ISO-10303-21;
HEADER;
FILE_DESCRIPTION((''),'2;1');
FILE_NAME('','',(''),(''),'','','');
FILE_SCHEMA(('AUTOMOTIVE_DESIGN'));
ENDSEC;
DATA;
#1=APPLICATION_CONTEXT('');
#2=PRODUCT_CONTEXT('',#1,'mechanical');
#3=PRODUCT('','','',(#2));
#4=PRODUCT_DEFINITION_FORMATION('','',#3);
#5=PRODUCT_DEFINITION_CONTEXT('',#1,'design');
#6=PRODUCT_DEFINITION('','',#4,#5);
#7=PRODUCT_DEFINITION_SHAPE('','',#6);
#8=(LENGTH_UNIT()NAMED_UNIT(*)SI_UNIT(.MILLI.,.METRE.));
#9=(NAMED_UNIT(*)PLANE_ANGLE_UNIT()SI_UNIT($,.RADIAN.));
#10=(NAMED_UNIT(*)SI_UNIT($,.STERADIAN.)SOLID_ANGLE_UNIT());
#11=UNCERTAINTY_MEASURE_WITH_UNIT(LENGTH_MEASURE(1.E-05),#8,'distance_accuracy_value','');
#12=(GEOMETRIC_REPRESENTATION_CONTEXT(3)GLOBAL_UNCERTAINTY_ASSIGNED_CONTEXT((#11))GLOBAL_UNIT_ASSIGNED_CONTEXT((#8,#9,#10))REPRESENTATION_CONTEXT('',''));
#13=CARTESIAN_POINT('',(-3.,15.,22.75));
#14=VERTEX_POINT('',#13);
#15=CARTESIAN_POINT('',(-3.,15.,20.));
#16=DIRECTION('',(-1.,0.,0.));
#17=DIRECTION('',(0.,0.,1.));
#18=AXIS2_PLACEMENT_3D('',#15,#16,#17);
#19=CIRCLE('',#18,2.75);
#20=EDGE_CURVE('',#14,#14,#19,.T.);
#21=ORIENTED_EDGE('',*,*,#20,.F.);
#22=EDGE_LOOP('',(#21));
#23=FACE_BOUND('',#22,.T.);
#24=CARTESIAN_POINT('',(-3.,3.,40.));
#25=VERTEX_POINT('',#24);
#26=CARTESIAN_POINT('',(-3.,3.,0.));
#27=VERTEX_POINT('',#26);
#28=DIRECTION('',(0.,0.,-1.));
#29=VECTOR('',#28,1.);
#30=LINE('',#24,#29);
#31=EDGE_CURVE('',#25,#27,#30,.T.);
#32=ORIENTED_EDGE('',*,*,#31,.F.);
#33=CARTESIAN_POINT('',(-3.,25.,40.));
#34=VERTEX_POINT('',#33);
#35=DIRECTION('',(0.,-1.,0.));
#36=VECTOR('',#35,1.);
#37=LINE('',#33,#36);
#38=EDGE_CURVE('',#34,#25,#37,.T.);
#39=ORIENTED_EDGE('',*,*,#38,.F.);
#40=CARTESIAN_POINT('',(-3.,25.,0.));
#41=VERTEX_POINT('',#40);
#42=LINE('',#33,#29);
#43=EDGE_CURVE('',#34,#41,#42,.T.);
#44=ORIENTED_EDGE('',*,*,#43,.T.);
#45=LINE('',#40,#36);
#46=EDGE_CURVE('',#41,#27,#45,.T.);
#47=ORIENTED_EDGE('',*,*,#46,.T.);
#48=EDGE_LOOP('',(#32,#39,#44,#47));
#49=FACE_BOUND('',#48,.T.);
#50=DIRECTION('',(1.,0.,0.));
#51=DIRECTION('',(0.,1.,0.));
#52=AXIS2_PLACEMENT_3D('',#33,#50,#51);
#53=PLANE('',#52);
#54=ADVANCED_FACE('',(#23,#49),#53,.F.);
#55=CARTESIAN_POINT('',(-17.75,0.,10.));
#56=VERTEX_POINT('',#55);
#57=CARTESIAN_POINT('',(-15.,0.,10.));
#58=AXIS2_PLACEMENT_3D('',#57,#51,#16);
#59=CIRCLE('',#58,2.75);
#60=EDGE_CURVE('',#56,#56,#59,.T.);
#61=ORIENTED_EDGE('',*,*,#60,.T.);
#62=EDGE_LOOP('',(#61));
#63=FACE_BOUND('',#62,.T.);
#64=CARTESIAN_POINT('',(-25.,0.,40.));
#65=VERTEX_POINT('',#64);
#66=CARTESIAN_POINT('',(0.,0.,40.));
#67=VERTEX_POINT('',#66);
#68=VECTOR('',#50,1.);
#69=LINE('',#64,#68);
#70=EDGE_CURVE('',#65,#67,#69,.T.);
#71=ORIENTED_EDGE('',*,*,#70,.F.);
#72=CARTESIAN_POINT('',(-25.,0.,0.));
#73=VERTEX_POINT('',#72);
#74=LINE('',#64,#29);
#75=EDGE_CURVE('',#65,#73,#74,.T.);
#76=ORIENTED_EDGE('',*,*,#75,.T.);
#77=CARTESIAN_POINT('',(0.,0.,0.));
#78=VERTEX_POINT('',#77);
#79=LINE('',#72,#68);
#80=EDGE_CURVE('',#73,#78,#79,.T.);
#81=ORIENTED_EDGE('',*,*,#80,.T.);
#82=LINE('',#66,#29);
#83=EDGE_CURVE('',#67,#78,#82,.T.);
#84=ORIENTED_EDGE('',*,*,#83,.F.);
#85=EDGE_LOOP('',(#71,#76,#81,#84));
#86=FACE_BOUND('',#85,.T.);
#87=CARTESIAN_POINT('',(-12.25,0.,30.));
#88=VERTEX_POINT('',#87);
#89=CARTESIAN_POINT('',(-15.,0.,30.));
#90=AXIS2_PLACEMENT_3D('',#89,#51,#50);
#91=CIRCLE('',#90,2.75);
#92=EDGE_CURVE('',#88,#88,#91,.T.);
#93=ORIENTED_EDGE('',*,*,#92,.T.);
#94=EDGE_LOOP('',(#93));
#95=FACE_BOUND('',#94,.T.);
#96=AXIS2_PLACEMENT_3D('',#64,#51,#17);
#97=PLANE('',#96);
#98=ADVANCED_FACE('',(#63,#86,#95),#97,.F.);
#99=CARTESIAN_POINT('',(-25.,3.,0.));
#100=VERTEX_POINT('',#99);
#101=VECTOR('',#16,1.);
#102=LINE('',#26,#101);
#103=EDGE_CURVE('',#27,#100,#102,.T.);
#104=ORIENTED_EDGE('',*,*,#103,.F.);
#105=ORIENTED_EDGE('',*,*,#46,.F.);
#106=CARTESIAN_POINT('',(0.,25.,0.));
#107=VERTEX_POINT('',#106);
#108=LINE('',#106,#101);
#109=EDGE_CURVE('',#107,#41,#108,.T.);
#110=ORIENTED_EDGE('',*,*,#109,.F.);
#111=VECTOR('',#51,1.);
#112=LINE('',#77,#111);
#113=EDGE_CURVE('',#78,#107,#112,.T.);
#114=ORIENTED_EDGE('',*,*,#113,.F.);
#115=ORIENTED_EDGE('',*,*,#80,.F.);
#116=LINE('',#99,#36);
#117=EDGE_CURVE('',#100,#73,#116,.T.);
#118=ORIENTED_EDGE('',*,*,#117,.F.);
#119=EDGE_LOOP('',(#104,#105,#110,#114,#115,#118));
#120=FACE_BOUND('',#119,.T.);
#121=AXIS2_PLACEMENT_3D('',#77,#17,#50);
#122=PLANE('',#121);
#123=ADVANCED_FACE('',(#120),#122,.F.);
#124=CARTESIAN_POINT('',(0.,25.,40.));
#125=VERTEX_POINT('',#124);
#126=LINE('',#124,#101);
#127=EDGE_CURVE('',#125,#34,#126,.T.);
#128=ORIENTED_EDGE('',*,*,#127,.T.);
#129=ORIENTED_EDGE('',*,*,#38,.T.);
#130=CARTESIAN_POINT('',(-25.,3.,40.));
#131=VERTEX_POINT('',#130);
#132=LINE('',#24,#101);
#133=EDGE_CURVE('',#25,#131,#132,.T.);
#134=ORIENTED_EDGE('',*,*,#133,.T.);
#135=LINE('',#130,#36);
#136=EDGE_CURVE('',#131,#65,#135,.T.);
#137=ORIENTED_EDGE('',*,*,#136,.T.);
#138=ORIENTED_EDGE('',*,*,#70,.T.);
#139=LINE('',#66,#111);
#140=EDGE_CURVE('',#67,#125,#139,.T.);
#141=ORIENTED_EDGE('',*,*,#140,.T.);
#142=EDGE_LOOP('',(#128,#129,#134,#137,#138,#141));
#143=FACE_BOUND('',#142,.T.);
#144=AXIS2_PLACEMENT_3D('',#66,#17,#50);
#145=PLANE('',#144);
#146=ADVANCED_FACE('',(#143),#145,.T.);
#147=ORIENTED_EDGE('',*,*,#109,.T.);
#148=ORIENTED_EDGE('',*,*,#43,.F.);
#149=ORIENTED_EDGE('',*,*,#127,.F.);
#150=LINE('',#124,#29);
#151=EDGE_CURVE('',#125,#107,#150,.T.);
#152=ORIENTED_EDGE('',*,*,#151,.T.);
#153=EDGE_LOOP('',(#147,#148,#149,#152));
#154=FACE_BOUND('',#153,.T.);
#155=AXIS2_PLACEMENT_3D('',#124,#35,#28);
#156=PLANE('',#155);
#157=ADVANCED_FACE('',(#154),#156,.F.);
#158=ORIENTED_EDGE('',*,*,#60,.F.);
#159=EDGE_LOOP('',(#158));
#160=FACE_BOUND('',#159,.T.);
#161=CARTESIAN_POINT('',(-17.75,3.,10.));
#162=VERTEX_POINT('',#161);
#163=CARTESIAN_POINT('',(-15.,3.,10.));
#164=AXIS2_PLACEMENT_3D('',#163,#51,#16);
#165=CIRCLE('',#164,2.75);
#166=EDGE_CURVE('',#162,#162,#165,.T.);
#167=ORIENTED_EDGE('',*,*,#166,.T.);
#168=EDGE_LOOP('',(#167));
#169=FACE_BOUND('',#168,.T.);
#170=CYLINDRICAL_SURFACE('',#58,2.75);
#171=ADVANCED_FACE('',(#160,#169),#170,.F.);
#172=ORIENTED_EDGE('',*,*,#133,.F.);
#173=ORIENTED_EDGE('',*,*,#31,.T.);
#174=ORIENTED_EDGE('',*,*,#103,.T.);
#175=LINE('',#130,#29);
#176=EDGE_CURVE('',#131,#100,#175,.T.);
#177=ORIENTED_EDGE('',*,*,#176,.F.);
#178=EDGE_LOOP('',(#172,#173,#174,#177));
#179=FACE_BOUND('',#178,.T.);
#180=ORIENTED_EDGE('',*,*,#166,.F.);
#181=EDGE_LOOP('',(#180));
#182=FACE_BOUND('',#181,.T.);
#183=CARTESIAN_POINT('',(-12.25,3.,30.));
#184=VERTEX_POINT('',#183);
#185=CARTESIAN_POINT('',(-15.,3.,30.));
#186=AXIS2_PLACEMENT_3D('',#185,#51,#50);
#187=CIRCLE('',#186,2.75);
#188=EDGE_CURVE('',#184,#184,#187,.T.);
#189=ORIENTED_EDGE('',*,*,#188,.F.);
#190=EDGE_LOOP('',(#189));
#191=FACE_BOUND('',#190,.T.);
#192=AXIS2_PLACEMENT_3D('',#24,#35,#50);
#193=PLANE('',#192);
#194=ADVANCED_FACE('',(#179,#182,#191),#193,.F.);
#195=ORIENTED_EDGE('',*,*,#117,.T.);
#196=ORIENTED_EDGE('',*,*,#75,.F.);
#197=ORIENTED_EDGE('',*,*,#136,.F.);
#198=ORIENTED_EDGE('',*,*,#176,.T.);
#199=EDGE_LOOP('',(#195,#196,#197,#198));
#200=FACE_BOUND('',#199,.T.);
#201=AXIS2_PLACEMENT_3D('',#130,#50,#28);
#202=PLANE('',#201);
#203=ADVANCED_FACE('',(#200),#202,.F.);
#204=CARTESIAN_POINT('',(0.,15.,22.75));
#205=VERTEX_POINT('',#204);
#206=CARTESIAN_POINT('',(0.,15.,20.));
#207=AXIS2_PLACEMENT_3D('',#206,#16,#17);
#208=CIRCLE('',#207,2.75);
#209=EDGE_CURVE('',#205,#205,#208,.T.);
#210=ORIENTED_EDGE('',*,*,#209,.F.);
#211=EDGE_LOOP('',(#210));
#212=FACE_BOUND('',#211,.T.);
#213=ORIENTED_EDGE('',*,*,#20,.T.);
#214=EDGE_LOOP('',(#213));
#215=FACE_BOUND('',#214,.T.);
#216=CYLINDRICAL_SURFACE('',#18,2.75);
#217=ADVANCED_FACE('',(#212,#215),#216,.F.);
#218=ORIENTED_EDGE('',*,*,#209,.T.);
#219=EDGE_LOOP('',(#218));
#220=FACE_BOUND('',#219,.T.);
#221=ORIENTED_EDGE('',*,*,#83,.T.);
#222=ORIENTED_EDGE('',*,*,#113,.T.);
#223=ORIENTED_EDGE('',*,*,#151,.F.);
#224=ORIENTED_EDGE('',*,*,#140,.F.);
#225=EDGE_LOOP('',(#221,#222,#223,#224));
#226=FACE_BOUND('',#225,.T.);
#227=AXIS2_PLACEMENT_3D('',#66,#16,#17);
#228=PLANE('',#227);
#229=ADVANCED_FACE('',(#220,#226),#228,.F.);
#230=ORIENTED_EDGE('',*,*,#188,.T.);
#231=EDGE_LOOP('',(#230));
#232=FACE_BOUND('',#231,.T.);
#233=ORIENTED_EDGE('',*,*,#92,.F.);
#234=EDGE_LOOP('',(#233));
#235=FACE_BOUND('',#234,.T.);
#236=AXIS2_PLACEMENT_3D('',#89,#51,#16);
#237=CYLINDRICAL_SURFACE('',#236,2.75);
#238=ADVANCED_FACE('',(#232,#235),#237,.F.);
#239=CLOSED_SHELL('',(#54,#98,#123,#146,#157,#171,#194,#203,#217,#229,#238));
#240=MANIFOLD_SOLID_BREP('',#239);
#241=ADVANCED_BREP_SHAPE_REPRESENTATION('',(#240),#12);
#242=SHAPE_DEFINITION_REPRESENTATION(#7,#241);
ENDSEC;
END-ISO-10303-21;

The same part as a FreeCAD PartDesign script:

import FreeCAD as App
import Part
import Sketcher
from FreeCAD import Vector
Q = App.Units.Quantity


def add_polygon(sketch, points):
    """Adds a closed chain of lines whose ends are joined by coincident constraints."""
    first, n = sketch.GeometryCount, len(points)
    for a, b in zip(points, points[1:] + points[:1]):
        sketch.addGeometry(Part.LineSegment(App.Vector(*a, 0), App.Vector(*b, 0)), False)
    for i in range(n):
        sketch.addConstraint(Sketcher.Constraint("Coincident", first + i, 2, first + (i + 1) % n, 1))

doc = App.newDocument("Part")
body = doc.addObject("PartDesign::Body", "Body")

sketch1 = body.newObject("Sketcher::SketchObject", "Sketch")
sketch1.AttachmentSupport = (doc.getObject("XY_Plane"), [""])
sketch1.MapMode = "FlatFace"
add_polygon(sketch1, [(0, 0), (0, 25), (-3, 25), (-3, 3), (-25, 3), (-25, 0)])
sketch1.addConstraint(Sketcher.Constraint("Vertical", 0))
sketch1.addConstraint(Sketcher.Constraint("Horizontal", 1))
sketch1.addConstraint(Sketcher.Constraint("Vertical", 2))
sketch1.addConstraint(Sketcher.Constraint("Horizontal", 3))
sketch1.addConstraint(Sketcher.Constraint("Vertical", 4))
sketch1.addConstraint(Sketcher.Constraint("Horizontal", 5))
sketch1.addConstraint(Sketcher.Constraint("Coincident", 5, 2, -1, 1))
sketch1.addConstraint(Sketcher.Constraint("Equal", 5, 0))
sketch1.addConstraint(Sketcher.Constraint("Equal", 3, 2))
sketch1.addConstraint(Sketcher.Constraint("DistanceX", 1, 2, 1, 1, Q("3 mm")))
sketch1.addConstraint(Sketcher.Constraint("DistanceX", 3, 2, 3, 1, Q("22 mm")))
pad1 = body.newObject("PartDesign::Pad", "Pad")
pad1.Profile = sketch1
pad1.Length = 40

sketch2 = body.newObject("Sketcher::SketchObject", "Sketch001")
sketch2.AttachmentSupport = (doc.getObject("XZ_Plane"), [""])
sketch2.MapMode = "FlatFace"
sketch2.AttachmentOffset = App.Placement(Vector(0, 0, -3), App.Rotation())
sketch2.addGeometry(Part.Circle(Vector(-15, 10, 0), Vector(0, 0, 1), 2.75), False)
sketch2.addGeometry(Part.Circle(Vector(-15, 30, 0), Vector(0, 0, 1), 2.75), False)
sketch2.addConstraint(Sketcher.Constraint("Equal", 0, 1))
sketch2.addConstraint(Sketcher.Constraint("Vertical", 0, 3, 1, 3))
sketch2.addConstraint(Sketcher.Constraint("Diameter", 0, Q("5.5 mm")))
sketch2.addConstraint(Sketcher.Constraint("DistanceX", 0, 3, -1, 1, Q("15 mm")))
sketch2.addConstraint(Sketcher.Constraint("DistanceY", -1, 1, 0, 3, Q("10 mm")))
sketch2.addConstraint(Sketcher.Constraint("DistanceY", -1, 1, 1, 3, Q("30 mm")))
pocket1 = body.newObject("PartDesign::Pocket", "Pocket")
pocket1.Profile = sketch2
pocket1.Type = "ThroughAll"
pocket1.Reversed = True

sketch3 = body.newObject("Sketcher::SketchObject", "Sketch002")
sketch3.AttachmentSupport = (doc.getObject("YZ_Plane"), [""])
sketch3.MapMode = "FlatFace"
sketch3.AttachmentOffset = App.Placement(Vector(0, 0, -3), App.Rotation())
sketch3.addGeometry(Part.Circle(Vector(15, 20, 0), Vector(0, 0, 1), 2.75), False)
sketch3.addConstraint(Sketcher.Constraint("Diameter", 0, Q("5.5 mm")))
sketch3.addConstraint(Sketcher.Constraint("DistanceX", -1, 1, 0, 3, Q("15 mm")))
sketch3.addConstraint(Sketcher.Constraint("DistanceY", -1, 1, 0, 3, Q("20 mm")))
doc.recompute()
hole = body.newObject("PartDesign::Hole", "Hole")
hole.Profile = sketch3
hole.ThreadType = "None"
hole.Diameter = 5.5
hole.DepthType = "ThroughAll"
hole.Reversed = True

doc.recompute()
